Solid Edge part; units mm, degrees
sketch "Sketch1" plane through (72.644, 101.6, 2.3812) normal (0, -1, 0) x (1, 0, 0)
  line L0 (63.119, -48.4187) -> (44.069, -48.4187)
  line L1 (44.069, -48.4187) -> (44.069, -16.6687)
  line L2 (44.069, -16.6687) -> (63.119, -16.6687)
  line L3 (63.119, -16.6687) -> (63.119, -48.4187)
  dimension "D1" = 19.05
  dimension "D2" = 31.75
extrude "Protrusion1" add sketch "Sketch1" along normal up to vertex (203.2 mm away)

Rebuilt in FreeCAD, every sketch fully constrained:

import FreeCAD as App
import Part
import Sketcher

V = App.Vector
Q = App.Units.Quantity

doc = App.newDocument("Part")
body = doc.addObject("PartDesign::Body", "Body")

sketch1 = doc.addObject("Sketcher::SketchObject", "Sketch")
body.addObject(sketch1)
sketch1.AttachmentSupport = (doc.XZ_Plane, [""])
sketch1.MapMode = "FlatFace"
sketch1.AttachmentOffset = App.Placement(V(0, 0, -4 * 25.4), App.Rotation())
sketch1.addGeometry(Part.LineSegment(V(116.713, -46.0375, 0), V(135.763, -46.0375, 0)), False)
sketch1.addGeometry(Part.LineSegment(V(135.763, -46.0375, 0), V(135.763, -14.2875, 0)), False)
sketch1.addGeometry(Part.LineSegment(V(135.763, -14.2875, 0), V(116.713, -14.2875, 0)), False)
sketch1.addGeometry(Part.LineSegment(V(116.713, -14.2875, 0), V(116.713, -46.0375, 0)), False)
sketch1.addConstraint(Sketcher.Constraint("Coincident", 0, 2, 1, 1))
sketch1.addConstraint(Sketcher.Constraint("Coincident", 1, 2, 2, 1))
sketch1.addConstraint(Sketcher.Constraint("Coincident", 2, 2, 3, 1))
sketch1.addConstraint(Sketcher.Constraint("Coincident", 3, 2, 0, 1))
sketch1.addConstraint(Sketcher.Constraint("Horizontal", 0))
sketch1.addConstraint(Sketcher.Constraint("Vertical", 1))
sketch1.addConstraint(Sketcher.Constraint("Horizontal", 2))
sketch1.addConstraint(Sketcher.Constraint("Vertical", 3))
sketch1.addConstraint(Sketcher.Constraint("DistanceX", 0, 1, 0, 2, Q("0.75 in")))
sketch1.addConstraint(Sketcher.Constraint("DistanceY", 1, 1, 1, 2, Q("1.25 in")))
sketch1.addConstraint(Sketcher.Constraint("DistanceX", -1, 1, 0, 2, Q("5.345 in")))
sketch1.addConstraint(Sketcher.Constraint("DistanceY", 0, 2, -1, 1, Q("1.8125 in")))
pad1 = doc.addObject("PartDesign::Pad", "Pad")
body.addObject(pad1)
pad1.Profile = sketch1
pad1.Length = Q("8 in")

doc.recompute()
